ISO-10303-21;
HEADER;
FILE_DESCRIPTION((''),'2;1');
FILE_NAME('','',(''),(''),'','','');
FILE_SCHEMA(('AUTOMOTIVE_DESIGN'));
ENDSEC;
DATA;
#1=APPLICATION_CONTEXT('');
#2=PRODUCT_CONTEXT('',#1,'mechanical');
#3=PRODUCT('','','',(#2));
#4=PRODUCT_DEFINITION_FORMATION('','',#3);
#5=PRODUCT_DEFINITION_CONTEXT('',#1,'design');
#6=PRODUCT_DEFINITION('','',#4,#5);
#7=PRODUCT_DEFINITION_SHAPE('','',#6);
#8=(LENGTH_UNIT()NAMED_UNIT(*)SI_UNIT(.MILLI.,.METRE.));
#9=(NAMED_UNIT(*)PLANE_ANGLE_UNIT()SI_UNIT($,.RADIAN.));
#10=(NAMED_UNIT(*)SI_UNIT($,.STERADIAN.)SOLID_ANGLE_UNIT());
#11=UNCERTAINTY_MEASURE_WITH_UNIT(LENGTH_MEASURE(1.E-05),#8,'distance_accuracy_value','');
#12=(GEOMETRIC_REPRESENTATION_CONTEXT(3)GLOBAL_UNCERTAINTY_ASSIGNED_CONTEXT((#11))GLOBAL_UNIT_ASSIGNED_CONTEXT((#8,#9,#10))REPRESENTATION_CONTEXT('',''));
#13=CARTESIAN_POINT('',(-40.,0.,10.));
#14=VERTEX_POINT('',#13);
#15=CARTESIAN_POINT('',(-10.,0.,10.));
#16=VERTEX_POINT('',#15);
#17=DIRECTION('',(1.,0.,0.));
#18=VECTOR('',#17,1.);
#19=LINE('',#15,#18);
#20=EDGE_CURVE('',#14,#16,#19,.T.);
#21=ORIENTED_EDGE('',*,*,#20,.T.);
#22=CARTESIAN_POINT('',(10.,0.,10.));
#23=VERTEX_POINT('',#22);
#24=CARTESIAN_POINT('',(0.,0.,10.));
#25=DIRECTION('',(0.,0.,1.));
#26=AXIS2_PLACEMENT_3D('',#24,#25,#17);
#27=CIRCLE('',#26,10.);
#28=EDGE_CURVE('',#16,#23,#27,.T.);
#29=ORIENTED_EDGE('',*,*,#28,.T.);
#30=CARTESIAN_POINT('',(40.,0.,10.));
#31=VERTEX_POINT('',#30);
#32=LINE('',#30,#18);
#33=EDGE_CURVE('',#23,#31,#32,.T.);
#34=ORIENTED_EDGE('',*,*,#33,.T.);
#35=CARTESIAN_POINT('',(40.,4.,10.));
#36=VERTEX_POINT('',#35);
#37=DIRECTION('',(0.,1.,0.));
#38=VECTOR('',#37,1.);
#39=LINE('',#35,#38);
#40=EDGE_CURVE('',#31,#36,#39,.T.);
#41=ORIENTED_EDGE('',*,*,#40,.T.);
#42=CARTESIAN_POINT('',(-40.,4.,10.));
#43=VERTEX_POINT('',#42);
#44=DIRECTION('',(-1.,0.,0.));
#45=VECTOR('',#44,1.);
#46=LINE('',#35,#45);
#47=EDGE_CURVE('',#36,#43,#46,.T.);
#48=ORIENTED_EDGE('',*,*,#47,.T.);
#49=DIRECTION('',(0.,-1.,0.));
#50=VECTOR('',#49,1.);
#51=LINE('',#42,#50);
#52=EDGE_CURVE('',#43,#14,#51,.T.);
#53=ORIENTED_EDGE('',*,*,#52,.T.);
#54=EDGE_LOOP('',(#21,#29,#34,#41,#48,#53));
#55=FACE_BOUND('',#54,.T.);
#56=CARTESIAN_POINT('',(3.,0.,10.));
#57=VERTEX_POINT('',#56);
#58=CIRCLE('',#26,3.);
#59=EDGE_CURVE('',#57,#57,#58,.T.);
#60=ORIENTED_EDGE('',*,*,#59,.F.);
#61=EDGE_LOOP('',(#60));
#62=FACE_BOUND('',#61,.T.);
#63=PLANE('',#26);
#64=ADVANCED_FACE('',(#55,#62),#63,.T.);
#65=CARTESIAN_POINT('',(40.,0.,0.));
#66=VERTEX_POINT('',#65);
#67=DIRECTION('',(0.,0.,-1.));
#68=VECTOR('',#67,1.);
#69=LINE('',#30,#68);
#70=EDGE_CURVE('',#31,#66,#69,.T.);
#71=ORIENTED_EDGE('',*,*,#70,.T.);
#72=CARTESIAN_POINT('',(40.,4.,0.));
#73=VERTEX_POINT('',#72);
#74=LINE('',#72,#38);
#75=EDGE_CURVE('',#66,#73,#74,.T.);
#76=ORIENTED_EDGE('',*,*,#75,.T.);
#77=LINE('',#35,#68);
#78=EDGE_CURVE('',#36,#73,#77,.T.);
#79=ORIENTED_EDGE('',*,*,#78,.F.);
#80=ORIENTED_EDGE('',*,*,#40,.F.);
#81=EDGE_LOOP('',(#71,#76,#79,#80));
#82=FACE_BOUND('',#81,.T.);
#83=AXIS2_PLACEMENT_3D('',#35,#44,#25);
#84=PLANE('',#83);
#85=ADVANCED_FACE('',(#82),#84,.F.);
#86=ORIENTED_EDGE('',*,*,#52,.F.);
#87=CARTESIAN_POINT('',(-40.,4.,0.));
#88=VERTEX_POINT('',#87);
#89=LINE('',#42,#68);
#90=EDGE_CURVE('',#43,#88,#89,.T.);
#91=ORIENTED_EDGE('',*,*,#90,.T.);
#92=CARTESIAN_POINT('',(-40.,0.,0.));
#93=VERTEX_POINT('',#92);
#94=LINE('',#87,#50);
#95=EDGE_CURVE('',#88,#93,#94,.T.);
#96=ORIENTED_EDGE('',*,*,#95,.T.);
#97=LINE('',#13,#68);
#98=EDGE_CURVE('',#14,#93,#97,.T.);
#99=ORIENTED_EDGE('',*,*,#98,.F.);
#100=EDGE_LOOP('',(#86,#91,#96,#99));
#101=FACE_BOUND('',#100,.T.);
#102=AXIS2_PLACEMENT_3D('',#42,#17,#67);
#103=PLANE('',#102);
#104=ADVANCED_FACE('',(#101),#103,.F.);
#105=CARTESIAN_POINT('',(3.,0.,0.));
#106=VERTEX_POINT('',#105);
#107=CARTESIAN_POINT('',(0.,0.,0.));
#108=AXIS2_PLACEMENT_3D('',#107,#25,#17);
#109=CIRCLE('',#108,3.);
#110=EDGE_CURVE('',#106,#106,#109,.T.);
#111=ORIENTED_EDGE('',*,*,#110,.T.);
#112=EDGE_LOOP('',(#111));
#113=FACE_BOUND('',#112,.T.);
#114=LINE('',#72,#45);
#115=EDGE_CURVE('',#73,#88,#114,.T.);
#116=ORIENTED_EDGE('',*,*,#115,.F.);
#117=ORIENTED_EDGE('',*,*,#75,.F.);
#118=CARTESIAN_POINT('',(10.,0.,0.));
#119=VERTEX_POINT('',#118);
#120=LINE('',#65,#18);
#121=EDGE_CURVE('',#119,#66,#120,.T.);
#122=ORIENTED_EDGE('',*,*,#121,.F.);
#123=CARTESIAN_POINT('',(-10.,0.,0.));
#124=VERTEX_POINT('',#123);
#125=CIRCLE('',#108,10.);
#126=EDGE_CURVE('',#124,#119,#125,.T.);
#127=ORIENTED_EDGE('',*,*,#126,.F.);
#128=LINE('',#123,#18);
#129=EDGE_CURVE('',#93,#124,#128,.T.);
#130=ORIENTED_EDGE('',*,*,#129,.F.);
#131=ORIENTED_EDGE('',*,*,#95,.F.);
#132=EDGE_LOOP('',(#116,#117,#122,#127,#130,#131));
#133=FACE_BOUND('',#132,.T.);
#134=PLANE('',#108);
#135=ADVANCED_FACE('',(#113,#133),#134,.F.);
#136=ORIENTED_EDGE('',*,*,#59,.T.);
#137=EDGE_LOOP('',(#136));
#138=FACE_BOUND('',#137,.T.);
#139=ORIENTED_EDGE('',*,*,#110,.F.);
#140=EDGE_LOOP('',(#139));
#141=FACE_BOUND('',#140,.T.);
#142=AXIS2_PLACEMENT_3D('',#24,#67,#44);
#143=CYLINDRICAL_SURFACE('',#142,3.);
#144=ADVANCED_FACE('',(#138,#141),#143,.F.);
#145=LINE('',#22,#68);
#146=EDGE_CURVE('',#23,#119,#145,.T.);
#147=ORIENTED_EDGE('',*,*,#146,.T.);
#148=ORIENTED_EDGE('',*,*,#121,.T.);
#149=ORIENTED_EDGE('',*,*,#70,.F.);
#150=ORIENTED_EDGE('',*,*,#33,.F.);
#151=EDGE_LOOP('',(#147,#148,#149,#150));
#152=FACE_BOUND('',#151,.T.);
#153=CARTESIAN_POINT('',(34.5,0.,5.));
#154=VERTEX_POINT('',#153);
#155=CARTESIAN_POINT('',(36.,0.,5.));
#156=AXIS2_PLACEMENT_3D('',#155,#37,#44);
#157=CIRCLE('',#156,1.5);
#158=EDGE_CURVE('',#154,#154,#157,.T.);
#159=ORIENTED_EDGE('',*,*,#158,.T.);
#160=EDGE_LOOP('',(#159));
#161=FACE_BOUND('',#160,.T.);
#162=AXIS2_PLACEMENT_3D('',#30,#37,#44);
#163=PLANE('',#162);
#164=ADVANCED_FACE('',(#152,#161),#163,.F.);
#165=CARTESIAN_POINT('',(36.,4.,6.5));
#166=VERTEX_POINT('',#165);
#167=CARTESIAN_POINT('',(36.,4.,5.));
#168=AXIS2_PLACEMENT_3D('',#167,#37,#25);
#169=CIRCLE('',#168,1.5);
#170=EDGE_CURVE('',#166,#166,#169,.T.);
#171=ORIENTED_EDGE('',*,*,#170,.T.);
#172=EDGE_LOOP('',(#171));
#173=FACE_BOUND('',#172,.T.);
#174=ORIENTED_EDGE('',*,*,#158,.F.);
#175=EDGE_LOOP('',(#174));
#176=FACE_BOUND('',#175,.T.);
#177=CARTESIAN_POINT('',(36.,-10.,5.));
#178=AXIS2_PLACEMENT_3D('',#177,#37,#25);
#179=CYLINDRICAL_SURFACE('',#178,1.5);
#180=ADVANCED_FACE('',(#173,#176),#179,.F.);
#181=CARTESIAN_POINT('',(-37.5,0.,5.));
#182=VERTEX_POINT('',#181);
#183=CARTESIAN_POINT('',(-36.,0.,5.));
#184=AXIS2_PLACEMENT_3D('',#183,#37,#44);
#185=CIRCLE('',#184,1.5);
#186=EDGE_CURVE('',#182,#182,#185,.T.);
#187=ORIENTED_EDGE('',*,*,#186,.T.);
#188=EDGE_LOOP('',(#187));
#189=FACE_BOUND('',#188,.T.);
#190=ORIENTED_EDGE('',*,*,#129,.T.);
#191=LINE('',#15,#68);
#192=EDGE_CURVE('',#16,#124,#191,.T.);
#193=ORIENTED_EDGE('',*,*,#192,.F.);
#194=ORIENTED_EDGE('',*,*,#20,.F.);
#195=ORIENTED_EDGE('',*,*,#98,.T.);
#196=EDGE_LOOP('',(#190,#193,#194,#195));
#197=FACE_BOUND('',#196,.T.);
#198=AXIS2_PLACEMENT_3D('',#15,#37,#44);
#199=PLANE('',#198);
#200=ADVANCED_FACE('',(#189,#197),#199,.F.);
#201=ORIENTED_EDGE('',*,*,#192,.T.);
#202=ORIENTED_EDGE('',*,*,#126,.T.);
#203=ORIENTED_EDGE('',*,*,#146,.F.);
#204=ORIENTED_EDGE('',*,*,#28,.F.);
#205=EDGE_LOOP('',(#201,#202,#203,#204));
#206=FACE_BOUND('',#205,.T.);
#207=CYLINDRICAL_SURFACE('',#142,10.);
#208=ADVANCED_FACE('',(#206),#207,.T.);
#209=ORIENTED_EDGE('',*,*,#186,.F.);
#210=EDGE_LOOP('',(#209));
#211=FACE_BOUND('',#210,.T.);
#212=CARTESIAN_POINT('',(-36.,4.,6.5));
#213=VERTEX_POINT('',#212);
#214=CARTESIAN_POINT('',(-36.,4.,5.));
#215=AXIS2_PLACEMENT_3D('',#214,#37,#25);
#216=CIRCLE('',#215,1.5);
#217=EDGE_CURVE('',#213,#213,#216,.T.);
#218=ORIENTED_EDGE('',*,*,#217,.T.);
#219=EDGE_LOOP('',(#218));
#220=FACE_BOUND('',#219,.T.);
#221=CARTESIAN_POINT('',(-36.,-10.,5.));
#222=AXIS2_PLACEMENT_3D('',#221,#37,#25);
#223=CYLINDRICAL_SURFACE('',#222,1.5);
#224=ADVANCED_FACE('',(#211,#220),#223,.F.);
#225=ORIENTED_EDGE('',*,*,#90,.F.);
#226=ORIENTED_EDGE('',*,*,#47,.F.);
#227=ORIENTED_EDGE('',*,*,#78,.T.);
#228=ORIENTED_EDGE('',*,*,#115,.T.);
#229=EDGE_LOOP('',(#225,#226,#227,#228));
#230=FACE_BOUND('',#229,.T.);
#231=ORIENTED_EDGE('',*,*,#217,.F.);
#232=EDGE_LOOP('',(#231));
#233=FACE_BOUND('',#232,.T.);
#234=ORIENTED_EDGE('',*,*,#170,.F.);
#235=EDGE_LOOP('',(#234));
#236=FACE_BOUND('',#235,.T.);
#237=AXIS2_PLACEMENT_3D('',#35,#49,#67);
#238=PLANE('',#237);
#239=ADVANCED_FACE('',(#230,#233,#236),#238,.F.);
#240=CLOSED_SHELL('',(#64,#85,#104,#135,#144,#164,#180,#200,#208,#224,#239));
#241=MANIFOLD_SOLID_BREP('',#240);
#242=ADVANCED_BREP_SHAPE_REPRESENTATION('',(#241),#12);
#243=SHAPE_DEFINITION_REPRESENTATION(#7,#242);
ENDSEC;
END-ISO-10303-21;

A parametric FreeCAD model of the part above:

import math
import FreeCAD as App
import Part
import Sketcher
Q = App.Units.Quantity

doc = App.newDocument("Part")
body = doc.addObject("PartDesign::Body", "Body")

# Sketch on XY plane
sketch1 = body.newObject("Sketcher::SketchObject", "Sketch")
sketch1.AttachmentSupport = (doc.getObject("XY_Plane"), [""])
sketch1.MapMode = "FlatFace"
sketch1.addGeometry([
    Part.LineSegment(App.Vector(-40, 0, 0), App.Vector(-10, 0, 0)),  # 0
    Part.ArcOfCircle(Part.Circle(App.Vector(0, 0, 0), App.Vector(0, 0, 1), 10), math.radians(180), math.radians(360)),  # 1
    Part.LineSegment(App.Vector(10, 0, 0), App.Vector(40, 0, 0)),  # 2
    Part.LineSegment(App.Vector(40, 0, 0), App.Vector(40, 4, 0)),  # 3
    Part.LineSegment(App.Vector(40, 4, 0), App.Vector(-40, 4, 0)),  # 4
    Part.LineSegment(App.Vector(-40, 4, 0), App.Vector(-40, 0, 0)),  # 5
    Part.Circle(App.Vector(0, 0, 0), App.Vector(0, 0, 1), 3),  # 6
], False)
sketch1.addConstraint([
    Sketcher.Constraint("Coincident", 0, 2, 1, 1),
    Sketcher.Constraint("Coincident", 1, 2, 2, 1),
    Sketcher.Constraint("Coincident", 2, 2, 3, 1),
    Sketcher.Constraint("Coincident", 3, 2, 4, 1),
    Sketcher.Constraint("Coincident", 4, 2, 5, 1),
    Sketcher.Constraint("Coincident", 5, 2, 0, 1),
    Sketcher.Constraint("Horizontal", 0),
    Sketcher.Constraint("Horizontal", 2),
    Sketcher.Constraint("Vertical", 3),
    Sketcher.Constraint("Horizontal", 4),
    Sketcher.Constraint("Vertical", 5),
    Sketcher.Constraint("Coincident", 1, 3, -1, 1),
    Sketcher.Constraint("Coincident", 6, 3, -1, 1),
    Sketcher.Constraint("Symmetric", 2, 2, 5, 2, -1, 1),
    Sketcher.Constraint("PointOnObject", 0, 2, -1),
    Sketcher.Constraint("Diameter", 6, Q("6 mm")),
    Sketcher.Constraint("Radius", 1, Q("10 mm")),
    Sketcher.Constraint("DistanceX", 0, 1, 0, 2, Q("30 mm")),
    Sketcher.Constraint("DistanceY", 3, 1, 3, 2, Q("4 mm")),
])
pad1 = body.newObject("PartDesign::Pad", "Pad")
pad1.Profile = sketch1
pad1.Length = 10

# Sketch on XZ plane
sketch2 = body.newObject("Sketcher::SketchObject", "Sketch001")
sketch2.AttachmentSupport = (doc.getObject("XZ_Plane"), [""])
sketch2.MapMode = "FlatFace"
sketch2.AttachmentOffset = App.Placement(App.Vector(0, 0, -4), App.Rotation())
sketch2.addGeometry([
    Part.Circle(App.Vector(-36, 5, 0), App.Vector(0, 0, 1), 1.5),
    Part.Circle(App.Vector(36, 5, 0), App.Vector(0, 0, 1), 1.5),
], False)
sketch2.addConstraint([
    Sketcher.Constraint("Equal", 0, 1),
    Sketcher.Constraint("Symmetric", 0, 3, 1, 3, -2),
    Sketcher.Constraint("Diameter", 0, Q("3 mm")),
    Sketcher.Constraint("DistanceX", 0, 3, -1, 1, Q("36 mm")),
    Sketcher.Constraint("DistanceY", -1, 1, 0, 3, Q("5 mm")),
])
pocket1 = body.newObject("PartDesign::Pocket", "Pocket")
pocket1.Profile = sketch2
pocket1.Type = "ThroughAll"
pocket1.Reversed = True

doc.recompute()
